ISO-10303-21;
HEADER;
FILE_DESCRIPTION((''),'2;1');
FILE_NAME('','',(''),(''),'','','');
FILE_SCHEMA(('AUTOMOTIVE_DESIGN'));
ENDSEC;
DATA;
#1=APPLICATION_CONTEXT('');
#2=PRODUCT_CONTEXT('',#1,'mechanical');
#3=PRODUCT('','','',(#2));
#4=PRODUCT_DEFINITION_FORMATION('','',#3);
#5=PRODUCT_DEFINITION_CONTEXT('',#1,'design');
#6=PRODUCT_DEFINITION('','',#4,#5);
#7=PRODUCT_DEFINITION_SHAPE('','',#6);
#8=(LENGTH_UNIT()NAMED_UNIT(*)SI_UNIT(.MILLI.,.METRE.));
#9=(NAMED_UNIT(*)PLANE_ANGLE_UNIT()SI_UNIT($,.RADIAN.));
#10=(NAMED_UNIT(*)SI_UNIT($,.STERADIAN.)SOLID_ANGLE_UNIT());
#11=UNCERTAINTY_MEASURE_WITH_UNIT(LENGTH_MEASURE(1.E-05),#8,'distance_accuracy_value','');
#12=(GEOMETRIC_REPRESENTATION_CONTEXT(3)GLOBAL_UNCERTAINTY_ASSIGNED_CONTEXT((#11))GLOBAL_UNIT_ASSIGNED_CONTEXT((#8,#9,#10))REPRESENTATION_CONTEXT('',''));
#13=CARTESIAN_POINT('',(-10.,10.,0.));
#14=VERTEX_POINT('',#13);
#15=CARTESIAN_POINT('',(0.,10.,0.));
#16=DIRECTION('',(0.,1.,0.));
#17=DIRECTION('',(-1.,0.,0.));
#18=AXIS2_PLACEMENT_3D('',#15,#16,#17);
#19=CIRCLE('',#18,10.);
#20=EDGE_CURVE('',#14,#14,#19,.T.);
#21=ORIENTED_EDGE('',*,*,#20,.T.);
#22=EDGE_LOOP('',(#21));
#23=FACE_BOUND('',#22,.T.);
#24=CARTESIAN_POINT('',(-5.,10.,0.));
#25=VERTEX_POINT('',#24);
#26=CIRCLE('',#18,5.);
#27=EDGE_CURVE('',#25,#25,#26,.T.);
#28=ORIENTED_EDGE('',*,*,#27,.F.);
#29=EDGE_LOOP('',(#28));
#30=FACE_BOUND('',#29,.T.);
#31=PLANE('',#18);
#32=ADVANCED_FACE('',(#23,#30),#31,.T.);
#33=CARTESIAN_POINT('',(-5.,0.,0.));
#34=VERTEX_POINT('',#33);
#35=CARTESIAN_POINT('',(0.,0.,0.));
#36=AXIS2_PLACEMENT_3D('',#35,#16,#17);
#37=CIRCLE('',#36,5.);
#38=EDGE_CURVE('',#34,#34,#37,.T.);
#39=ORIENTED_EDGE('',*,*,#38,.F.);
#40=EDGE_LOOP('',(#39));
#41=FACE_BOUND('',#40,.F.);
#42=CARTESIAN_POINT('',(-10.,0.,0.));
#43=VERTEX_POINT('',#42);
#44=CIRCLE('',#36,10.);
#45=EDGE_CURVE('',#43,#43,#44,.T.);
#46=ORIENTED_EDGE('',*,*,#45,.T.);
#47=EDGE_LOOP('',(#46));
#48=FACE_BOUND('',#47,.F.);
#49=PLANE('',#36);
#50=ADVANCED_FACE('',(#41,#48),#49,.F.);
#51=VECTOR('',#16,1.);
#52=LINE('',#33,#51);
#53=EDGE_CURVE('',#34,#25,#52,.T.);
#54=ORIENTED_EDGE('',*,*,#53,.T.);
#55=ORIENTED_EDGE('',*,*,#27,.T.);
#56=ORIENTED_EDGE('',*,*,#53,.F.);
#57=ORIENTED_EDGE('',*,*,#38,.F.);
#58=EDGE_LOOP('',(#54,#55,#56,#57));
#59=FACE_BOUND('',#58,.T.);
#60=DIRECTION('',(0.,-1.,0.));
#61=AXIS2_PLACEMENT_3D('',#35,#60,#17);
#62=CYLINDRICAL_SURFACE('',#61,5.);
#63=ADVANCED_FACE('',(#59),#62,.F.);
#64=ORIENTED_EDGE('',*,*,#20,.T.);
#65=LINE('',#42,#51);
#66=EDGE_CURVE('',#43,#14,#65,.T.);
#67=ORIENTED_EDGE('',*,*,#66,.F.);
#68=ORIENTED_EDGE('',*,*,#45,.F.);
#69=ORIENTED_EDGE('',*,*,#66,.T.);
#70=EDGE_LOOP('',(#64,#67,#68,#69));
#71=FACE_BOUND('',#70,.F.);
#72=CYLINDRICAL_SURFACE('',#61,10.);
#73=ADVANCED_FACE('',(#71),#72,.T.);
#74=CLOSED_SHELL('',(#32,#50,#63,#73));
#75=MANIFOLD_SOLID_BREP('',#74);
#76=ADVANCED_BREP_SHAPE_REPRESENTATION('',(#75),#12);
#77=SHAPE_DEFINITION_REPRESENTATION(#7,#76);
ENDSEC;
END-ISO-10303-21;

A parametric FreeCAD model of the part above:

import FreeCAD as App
import Part
import Sketcher
Q = App.Units.Quantity

doc = App.newDocument("Part")
params = doc.addObject("Spreadsheet::Sheet", "Params")
for row, (alias, value) in enumerate([
    ("sketch1_diameter", "20 mm"),
    ("sketch1_diameter2", "10 mm"),
    ("pad1_length", "10 mm"),
], start=1):
    params.set(f"A{row}", alias)
    params.set(f"B{row}", "=" + value)
    params.setAlias(f"B{row}", alias)

body = doc.addObject("PartDesign::Body", "Body")

sketch1 = body.newObject("Sketcher::SketchObject", "Sketch")
sketch1.AttachmentSupport = (doc.getObject("XZ_Plane"), [""])
sketch1.MapMode = "FlatFace"
sketch1.addGeometry([
    Part.Circle(App.Vector(0, 0, 0), App.Vector(0, 0, 1), 10),
    Part.Circle(App.Vector(0, 0, 0), App.Vector(0, 0, 1), 5),
], False)
sketch1.addConstraint([
    Sketcher.Constraint("Coincident", 0, 3, -1, 1),
    Sketcher.Constraint("Coincident", 1, 3, -1, 1),
    Sketcher.Constraint("Diameter", 0, Q("20 mm")),
    Sketcher.Constraint("Diameter", 1, Q("10 mm")),
])
sketch1.setExpression("Constraints[2]", "Params.sketch1_diameter")
sketch1.setExpression("Constraints[3]", "Params.sketch1_diameter2")
pad1 = body.newObject("PartDesign::Pad", "Pad")
pad1.Profile = sketch1
pad1.setExpression("Length", "Params.pad1_length")
pad1.Reversed = True

doc.recompute()
